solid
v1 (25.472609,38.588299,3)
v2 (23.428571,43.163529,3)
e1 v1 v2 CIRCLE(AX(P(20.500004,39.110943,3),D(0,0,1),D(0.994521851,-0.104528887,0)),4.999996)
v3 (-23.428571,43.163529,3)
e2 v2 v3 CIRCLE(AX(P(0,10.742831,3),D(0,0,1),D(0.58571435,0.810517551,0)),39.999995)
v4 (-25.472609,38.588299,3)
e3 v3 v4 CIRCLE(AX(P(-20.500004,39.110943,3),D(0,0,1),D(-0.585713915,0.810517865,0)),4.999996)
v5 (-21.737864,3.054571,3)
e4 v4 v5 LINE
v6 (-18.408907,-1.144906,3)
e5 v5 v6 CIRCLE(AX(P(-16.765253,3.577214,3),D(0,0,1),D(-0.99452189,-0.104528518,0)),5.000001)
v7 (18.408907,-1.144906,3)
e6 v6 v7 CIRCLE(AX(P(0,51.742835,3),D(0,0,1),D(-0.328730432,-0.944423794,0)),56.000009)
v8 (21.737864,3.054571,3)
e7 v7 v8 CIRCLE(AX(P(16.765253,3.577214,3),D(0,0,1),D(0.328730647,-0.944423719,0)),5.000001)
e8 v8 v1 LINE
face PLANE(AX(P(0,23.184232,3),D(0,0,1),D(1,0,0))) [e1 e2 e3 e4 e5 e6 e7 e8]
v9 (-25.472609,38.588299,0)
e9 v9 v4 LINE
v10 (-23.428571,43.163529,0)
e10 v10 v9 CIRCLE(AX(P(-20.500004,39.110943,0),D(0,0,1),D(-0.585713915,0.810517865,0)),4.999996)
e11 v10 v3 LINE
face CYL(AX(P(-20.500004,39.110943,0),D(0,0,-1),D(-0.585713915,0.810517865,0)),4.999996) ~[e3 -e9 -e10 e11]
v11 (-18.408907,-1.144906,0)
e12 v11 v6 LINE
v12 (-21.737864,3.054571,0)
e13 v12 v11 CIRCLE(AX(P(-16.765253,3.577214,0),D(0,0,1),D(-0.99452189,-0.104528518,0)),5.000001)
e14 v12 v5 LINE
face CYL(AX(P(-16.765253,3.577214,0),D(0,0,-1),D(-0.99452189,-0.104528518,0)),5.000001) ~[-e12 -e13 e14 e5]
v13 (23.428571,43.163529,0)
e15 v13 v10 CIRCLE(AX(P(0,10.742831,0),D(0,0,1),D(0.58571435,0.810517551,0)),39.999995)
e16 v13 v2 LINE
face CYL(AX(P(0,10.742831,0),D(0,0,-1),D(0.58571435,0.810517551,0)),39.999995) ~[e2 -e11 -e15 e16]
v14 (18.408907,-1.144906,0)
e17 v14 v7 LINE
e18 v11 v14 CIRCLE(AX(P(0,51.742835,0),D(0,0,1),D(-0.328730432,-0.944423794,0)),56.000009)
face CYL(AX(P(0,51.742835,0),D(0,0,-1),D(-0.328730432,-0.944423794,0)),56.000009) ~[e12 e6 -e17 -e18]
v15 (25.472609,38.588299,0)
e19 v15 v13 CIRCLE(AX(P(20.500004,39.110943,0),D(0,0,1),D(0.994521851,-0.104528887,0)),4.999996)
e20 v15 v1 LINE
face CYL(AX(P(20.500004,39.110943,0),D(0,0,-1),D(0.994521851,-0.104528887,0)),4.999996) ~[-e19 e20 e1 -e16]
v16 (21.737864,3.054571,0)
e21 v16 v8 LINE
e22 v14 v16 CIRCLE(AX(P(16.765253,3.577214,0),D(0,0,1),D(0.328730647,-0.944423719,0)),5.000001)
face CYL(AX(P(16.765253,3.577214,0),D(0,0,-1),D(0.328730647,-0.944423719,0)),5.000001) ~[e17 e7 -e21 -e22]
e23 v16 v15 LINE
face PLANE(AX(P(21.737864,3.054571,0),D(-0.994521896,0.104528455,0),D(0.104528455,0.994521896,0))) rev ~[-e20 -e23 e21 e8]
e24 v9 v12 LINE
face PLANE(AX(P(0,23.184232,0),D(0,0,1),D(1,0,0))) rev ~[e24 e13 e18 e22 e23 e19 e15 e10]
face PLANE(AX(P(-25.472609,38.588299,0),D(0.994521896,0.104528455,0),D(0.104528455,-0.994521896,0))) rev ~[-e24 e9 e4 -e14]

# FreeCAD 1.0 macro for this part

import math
import FreeCAD as App
import Part
import Sketcher

V = App.Vector
Q = App.Units.Quantity

doc = App.newDocument("Part")
body = doc.addObject("PartDesign::Body", "Body")

sketch1 = body.newObject("Sketcher::SketchObject", "Sketch")
sketch1.AttachmentSupport = (doc.getObject("XY_Plane"), [""])
sketch1.MapMode = "FlatFace"
sketch1.addGeometry([
    Part.LineSegment(V(-25.5, 38.6, 0), V(-21.7, 3.1, 0)),
    Part.ArcOfCircle(Part.Circle(V(-16.8, 3.6, 0), V(0, 0, 1), 5), math.radians(-174), math.radians(-109)),
    Part.ArcOfCircle(Part.Circle(V(0, 51.7, 0), V(0, 0, 1), 56), math.radians(-109), math.radians(-71)),
    Part.ArcOfCircle(Part.Circle(V(16.8, 3.6, 0), V(0, 0, 1), 5), math.radians(-71), math.radians(-6)),
    Part.LineSegment(V(21.7, 3.1, 0), V(25.5, 38.6, 0)),
    Part.ArcOfCircle(Part.Circle(V(20.5, 39.1, 0), V(0, 0, 1), 5), math.radians(-6), math.radians(54)),
    Part.ArcOfCircle(Part.Circle(V(0, 10.7, 0), V(0, 0, 1), 40), math.radians(54), math.radians(126)),
    Part.ArcOfCircle(Part.Circle(V(-20.5, 39.1, 0), V(0, 0, 1), 5), math.radians(126), math.radians(186)),
], False)
sketch1.addConstraint([
    Sketcher.Constraint("Tangent", 0, 2, 1, 1),
    Sketcher.Constraint("Tangent", 1, 2, 2, 1),
    Sketcher.Constraint("Tangent", 2, 2, 3, 1),
    Sketcher.Constraint("Tangent", 3, 2, 4, 1),
    Sketcher.Constraint("Tangent", 4, 2, 5, 1),
    Sketcher.Constraint("Tangent", 5, 2, 6, 1),
    Sketcher.Constraint("Tangent", 6, 2, 7, 1),
    Sketcher.Constraint("Tangent", 7, 2, 0, 1),
    Sketcher.Constraint("Equal", 1, 3),
    Sketcher.Constraint("Equal", 5, 7),
    Sketcher.Constraint("Symmetric", 1, 3, 3, 3, -2),
    Sketcher.Constraint("Symmetric", 5, 3, 7, 3, -2),
    Sketcher.Constraint("Radius", 1, 5.000001),
    Sketcher.Constraint("Angle", 0, Q("-84 deg")),
    Sketcher.Constraint("Radius", 2, 56.000009),
    Sketcher.Constraint("Radius", 5, 4.999996),
    Sketcher.Constraint("Radius", 6, 39.999995),
    Sketcher.Constraint("DistanceY", -1, 1, 4, 2, 38.588299),
    Sketcher.Constraint("DistanceY", -1, 1, 6, 3, 10.742831),
    Sketcher.Constraint("DistanceY", -1, 1, 0, 2, 3.054571),
])
pad1 = body.newObject("PartDesign::Pad", "Pad")
pad1.Profile = sketch1
pad1.Length = 3

doc.recompute()
